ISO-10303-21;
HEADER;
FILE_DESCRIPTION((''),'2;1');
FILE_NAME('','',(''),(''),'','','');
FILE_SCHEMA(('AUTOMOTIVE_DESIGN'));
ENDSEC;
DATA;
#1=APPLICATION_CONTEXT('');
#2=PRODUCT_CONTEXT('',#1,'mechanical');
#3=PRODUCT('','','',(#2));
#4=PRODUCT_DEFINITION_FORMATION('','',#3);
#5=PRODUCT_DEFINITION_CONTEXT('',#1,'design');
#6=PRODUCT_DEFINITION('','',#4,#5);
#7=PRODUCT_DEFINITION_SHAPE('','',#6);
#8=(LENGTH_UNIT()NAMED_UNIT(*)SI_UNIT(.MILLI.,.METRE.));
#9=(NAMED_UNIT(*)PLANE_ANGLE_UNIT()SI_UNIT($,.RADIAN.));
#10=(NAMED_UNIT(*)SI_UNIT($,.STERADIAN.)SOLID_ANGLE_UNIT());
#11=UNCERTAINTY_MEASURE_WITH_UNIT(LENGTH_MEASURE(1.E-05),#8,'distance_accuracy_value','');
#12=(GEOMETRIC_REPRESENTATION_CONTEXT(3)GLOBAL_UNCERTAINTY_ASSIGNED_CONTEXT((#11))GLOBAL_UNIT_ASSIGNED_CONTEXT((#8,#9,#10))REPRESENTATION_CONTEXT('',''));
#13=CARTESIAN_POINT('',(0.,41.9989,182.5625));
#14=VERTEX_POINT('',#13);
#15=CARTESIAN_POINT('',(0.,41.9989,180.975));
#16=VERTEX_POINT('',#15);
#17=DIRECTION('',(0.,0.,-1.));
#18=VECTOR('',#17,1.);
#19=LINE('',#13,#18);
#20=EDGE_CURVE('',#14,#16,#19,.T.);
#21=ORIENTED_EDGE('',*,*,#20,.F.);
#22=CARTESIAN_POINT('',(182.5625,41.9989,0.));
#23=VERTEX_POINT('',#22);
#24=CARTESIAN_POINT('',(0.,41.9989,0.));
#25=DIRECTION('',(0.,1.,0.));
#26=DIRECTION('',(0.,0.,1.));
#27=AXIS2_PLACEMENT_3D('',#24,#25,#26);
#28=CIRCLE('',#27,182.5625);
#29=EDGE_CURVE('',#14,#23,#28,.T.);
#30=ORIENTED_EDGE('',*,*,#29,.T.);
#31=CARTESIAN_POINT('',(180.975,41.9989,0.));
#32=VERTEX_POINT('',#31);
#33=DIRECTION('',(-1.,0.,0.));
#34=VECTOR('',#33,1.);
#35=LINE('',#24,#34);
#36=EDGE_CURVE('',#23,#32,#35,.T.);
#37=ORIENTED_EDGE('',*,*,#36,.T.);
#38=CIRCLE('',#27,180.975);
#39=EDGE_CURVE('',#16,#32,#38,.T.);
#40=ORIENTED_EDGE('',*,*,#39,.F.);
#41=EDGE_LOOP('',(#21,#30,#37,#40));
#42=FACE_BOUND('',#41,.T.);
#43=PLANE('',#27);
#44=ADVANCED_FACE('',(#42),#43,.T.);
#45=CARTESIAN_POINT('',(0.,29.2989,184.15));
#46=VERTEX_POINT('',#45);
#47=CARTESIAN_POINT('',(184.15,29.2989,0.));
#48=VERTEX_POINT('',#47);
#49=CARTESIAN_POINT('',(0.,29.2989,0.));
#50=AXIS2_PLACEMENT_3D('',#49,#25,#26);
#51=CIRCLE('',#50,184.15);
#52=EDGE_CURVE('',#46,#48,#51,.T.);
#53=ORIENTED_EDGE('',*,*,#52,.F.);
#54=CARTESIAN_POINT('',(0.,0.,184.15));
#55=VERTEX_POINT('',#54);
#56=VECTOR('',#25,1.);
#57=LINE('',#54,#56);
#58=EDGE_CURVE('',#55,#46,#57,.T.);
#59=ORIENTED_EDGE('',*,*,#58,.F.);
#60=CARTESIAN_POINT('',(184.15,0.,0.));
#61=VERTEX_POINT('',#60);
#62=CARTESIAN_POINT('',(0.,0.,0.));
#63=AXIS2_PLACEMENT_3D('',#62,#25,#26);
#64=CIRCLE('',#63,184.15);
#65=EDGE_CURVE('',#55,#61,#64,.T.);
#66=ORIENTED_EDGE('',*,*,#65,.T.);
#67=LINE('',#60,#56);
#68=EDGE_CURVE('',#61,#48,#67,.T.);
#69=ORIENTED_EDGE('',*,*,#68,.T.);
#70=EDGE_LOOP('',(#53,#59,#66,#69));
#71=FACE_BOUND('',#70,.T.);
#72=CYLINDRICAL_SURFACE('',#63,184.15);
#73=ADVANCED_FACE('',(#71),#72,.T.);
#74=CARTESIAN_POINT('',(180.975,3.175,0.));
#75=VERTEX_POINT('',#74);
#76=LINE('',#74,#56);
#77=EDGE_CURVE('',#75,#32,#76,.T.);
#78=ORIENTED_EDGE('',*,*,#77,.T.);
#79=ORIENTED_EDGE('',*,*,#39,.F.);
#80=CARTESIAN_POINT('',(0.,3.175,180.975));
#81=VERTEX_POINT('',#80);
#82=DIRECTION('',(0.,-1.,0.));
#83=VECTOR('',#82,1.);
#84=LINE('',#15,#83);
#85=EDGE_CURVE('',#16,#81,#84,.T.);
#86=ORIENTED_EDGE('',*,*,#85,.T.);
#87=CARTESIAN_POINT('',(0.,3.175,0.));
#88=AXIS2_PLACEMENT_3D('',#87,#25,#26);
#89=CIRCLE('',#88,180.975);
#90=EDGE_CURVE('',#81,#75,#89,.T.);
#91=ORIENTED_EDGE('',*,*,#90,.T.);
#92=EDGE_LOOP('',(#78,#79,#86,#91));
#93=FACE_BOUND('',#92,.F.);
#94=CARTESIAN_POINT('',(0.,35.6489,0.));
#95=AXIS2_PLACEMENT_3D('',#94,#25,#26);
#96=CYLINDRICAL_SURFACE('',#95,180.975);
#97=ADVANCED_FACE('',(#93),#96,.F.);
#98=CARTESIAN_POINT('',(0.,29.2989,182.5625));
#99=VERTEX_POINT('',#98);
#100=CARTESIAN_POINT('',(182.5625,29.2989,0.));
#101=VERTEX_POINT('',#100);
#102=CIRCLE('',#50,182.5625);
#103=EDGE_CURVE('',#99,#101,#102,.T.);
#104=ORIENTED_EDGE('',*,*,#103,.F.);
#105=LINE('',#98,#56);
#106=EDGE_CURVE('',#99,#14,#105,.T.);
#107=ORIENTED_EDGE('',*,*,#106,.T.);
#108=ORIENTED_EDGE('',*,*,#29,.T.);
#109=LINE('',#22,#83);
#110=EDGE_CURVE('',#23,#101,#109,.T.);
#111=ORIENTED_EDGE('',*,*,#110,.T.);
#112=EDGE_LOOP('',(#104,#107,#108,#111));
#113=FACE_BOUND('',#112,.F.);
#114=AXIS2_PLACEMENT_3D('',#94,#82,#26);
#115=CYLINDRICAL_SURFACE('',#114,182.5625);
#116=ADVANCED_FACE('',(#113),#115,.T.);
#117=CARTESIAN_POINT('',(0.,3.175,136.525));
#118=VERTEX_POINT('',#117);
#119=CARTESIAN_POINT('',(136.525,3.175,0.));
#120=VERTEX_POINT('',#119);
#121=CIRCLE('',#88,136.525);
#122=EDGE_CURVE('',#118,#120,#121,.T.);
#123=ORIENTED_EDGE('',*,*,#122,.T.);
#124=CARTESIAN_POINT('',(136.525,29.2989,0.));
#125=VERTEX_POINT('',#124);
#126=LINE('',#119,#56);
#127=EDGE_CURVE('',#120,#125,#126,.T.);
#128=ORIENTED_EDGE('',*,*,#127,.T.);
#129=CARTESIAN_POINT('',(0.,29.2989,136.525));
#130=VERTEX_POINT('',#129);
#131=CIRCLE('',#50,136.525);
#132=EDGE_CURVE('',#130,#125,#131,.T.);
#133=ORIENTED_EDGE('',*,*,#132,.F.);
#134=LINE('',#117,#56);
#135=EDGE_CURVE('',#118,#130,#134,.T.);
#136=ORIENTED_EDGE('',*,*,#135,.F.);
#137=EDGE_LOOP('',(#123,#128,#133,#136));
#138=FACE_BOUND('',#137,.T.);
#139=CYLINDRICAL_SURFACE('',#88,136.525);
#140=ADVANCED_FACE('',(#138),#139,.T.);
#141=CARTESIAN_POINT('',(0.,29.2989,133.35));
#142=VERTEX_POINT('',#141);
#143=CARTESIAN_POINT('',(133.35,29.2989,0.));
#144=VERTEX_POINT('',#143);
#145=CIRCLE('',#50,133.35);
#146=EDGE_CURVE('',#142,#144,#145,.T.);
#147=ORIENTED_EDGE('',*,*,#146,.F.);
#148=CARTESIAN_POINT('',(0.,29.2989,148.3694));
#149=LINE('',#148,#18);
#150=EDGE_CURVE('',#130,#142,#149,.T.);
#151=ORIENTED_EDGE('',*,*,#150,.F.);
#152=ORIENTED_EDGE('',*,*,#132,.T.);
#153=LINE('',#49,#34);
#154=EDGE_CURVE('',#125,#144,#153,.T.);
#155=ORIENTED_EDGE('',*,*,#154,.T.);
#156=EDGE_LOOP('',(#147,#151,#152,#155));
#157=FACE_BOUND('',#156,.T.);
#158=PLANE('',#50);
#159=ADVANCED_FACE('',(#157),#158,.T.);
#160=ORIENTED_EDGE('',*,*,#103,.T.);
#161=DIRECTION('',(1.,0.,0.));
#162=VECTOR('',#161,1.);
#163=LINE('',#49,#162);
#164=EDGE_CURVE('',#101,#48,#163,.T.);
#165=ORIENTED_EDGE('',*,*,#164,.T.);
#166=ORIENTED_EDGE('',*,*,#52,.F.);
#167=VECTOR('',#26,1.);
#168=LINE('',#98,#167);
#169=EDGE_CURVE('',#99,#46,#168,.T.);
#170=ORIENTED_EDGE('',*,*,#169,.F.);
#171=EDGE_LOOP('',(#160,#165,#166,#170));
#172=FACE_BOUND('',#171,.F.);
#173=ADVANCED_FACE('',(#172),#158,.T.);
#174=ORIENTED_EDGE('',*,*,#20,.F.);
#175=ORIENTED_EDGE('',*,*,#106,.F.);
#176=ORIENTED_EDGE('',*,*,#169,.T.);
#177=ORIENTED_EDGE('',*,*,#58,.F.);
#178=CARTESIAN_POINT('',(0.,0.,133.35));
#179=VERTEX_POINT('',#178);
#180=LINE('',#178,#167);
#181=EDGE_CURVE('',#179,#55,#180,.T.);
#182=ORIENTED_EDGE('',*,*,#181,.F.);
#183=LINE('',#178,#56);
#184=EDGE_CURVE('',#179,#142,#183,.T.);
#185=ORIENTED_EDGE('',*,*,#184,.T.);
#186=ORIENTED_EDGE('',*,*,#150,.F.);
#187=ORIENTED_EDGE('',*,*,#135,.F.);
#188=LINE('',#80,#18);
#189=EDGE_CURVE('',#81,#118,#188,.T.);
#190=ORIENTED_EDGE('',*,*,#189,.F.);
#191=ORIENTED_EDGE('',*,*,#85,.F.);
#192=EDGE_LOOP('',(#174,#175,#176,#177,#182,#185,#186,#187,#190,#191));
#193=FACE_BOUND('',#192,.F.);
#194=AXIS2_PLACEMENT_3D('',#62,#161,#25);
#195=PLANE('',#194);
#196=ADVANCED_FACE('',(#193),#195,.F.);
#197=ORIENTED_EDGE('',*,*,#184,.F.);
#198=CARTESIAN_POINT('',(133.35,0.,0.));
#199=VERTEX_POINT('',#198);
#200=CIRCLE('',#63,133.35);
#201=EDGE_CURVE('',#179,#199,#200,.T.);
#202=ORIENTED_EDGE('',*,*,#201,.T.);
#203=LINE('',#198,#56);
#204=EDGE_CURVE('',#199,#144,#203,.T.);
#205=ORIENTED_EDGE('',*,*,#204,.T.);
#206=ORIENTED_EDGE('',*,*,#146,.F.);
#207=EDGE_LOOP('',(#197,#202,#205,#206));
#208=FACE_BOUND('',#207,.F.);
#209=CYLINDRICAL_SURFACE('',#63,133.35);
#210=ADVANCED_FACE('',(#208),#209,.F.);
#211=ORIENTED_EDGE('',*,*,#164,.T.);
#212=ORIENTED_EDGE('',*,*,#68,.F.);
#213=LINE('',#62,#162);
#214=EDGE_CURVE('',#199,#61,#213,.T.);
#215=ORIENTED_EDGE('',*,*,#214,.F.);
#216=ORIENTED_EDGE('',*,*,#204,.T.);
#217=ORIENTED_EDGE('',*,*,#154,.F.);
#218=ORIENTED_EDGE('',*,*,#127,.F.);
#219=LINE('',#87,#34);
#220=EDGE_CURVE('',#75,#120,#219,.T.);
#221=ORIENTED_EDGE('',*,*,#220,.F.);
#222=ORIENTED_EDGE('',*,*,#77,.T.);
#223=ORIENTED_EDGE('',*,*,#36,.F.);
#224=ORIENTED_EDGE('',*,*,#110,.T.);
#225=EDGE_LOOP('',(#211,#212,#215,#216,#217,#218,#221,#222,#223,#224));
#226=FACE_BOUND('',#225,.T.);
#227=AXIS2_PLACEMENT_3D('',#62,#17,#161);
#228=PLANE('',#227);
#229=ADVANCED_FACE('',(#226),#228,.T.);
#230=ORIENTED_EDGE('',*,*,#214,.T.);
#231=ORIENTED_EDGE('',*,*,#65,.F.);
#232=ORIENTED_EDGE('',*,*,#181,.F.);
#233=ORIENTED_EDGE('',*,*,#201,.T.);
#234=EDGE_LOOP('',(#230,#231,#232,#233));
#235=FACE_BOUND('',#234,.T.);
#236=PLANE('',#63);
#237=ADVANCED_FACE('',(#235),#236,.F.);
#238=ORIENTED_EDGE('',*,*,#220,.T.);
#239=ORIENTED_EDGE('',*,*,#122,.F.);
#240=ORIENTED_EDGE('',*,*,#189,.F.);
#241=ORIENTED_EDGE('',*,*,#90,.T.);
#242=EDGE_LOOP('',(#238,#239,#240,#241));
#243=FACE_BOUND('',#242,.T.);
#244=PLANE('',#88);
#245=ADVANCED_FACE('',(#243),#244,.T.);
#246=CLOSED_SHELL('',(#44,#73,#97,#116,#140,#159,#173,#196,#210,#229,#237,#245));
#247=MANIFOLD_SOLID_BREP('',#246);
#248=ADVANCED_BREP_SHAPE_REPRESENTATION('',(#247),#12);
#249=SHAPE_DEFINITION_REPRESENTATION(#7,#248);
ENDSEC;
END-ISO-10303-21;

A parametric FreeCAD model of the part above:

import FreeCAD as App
import Part
import Sketcher

V = App.Vector
Q = App.Units.Quantity


def add_polygon(sketch, points):
    """Adds a closed chain of lines whose ends are joined by coincident constraints."""
    first, n = sketch.GeometryCount, len(points)
    for a, b in zip(points, points[1:] + points[:1]):
        sketch.addGeometry(Part.LineSegment(App.Vector(*a, 0), App.Vector(*b, 0)), False)
    for i in range(n):
        sketch.addConstraint(Sketcher.Constraint("Coincident", first + i, 2, first + (i + 1) % n, 1))

doc = App.newDocument("Part")
body = doc.addObject("PartDesign::Body", "Body")

# Sketch on YZ plane
sketch1 = body.newObject("Sketcher::SketchObject", "Sketch")
sketch1.AttachmentSupport = (doc.getObject("YZ_Plane"), [""])
sketch1.MapMode = "FlatFace"
add_polygon(sketch1, [(0, 184.2), (0, 133.3), (29.3, 133.3), (29.3, 136.5), (3.2, 136.5), (3.2, 181), (42, 181), (42, 182.6), (29.3, 182.6), (29.3, 184.2)])  # lines 0-9
sketch1.addConstraint(Sketcher.Constraint("Vertical", 0))
sketch1.addConstraint(Sketcher.Constraint("Horizontal", 1))
sketch1.addConstraint(Sketcher.Constraint("Vertical", 2))
sketch1.addConstraint(Sketcher.Constraint("Horizontal", 3))
sketch1.addConstraint(Sketcher.Constraint("Vertical", 4))
sketch1.addConstraint(Sketcher.Constraint("Horizontal", 5))
sketch1.addConstraint(Sketcher.Constraint("Vertical", 6))
sketch1.addConstraint(Sketcher.Constraint("Horizontal", 7))
sketch1.addConstraint(Sketcher.Constraint("Vertical", 8))
sketch1.addConstraint(Sketcher.Constraint("Horizontal", 9))
sketch1.addConstraint(Sketcher.Constraint("PointOnObject", 0, 2, -2))
sketch1.addConstraint(Sketcher.Constraint("Vertical", 2, 2, 7, 2))
sketch1.addConstraint(Sketcher.Constraint("Equal", 6, 8))
sketch1.addConstraint(Sketcher.Constraint("DistanceY", 0, 2, 0, 1, Q("2 in")))
sketch1.addConstraint(Sketcher.Constraint("DistanceX", 7, 2, 7, 1, Q("0.5 in")))
sketch1.addConstraint(Sketcher.Constraint("DistanceY", 2, 1, 2, 2, Q("0.125 in")))
sketch1.addConstraint(Sketcher.Constraint("DistanceY", -1, 1, 0, 2, Q("5.25 in")))
sketch1.addConstraint(Sketcher.Constraint("DistanceX", 3, 2, 3, 1, Q("1.0285 in")))
sketch1.addConstraint(Sketcher.Constraint("DistanceX", -1, 1, 3, 2, Q("0.125 in")))
sketch1.addConstraint(Sketcher.Constraint("DistanceY", 5, 2, 8, 2, Q("0.125 in")))
revolution = body.newObject("PartDesign::Revolution", "Revolution")
revolution.Profile = sketch1
revolution.ReferenceAxis = (sketch1, ["H_Axis"])
revolution.Angle = 180

# Sketch on XZ plane
sketch2 = body.newObject("Sketcher::SketchObject", "Sketch001")
sketch2.AttachmentSupport = (doc.getObject("XZ_Plane"), [""])
sketch2.MapMode = "FlatFace"
add_polygon(sketch2, [(198, 0), (0, 0), (0, -209), (198, -209)])  # lines 0-3
sketch2.addConstraint(Sketcher.Constraint("Horizontal", 0))
sketch2.addConstraint(Sketcher.Constraint("Vertical", 1))
sketch2.addConstraint(Sketcher.Constraint("Horizontal", 2))
sketch2.addConstraint(Sketcher.Constraint("Vertical", 3))
sketch2.addConstraint(Sketcher.Constraint("Coincident", 0, 2, -1, 1))
sketch2.addConstraint(Sketcher.Constraint("DistanceX", 0, 2, 0, 1, Q("197.7454 mm")))
sketch2.addConstraint(Sketcher.Constraint("DistanceY", 1, 2, 1, 1, Q("208.8928 mm")))
pocket1 = body.newObject("PartDesign::Pocket", "Pocket")
pocket1.Profile = sketch2
pocket1.Type = "ThroughAll"

doc.recompute()
